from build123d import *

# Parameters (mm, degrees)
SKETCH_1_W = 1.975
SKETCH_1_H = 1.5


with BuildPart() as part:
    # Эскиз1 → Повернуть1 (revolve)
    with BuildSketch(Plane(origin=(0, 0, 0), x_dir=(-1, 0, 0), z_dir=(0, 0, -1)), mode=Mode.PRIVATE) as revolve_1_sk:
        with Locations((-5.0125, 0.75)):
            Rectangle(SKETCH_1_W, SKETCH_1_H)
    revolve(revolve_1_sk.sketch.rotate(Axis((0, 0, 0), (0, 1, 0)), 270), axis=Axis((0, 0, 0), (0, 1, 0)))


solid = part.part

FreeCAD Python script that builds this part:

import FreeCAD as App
import Part
import Sketcher

V = App.Vector
Q = App.Units.Quantity


def add_polygon(sketch, points):
    """Adds a closed chain of lines whose ends are joined by coincident constraints."""
    first, n = sketch.GeometryCount, len(points)
    for a, b in zip(points, points[1:] + points[:1]):
        sketch.addGeometry(Part.LineSegment(App.Vector(*a, 0), App.Vector(*b, 0)), False)
    for i in range(n):
        sketch.addConstraint(Sketcher.Constraint("Coincident", first + i, 2, first + (i + 1) % n, 1))

doc = App.newDocument("Part")
body = doc.addObject("PartDesign::Body", "Body")

# Sketch on XY plane
sketch1 = body.newObject("Sketcher::SketchObject", "Sketch")
sketch1.AttachmentSupport = (doc.getObject("XY_Plane"), [""])
sketch1.MapMode = "FlatFace"
add_polygon(sketch1, [(6, 1.5), (6, 0), (4, 0), (4, 1.5)])  # lines 0-3
sketch1.addConstraint(Sketcher.Constraint("Vertical", 0))
sketch1.addConstraint(Sketcher.Constraint("Horizontal", 1))
sketch1.addConstraint(Sketcher.Constraint("Vertical", 2))
sketch1.addConstraint(Sketcher.Constraint("Horizontal", 3))
sketch1.addConstraint(Sketcher.Constraint("PointOnObject", 0, 2, -1))
sketch1.addConstraint(Sketcher.Constraint("DistanceY", 0, 2, 0, 1, Q("1.5 mm")))
sketch1.addConstraint(Sketcher.Constraint("DistanceX", -1, 1, 0, 2, Q("6 mm")))
sketch1.addConstraint(Sketcher.Constraint("DistanceX", 1, 2, 1, 1, Q("1.975 mm")))
revolution = body.newObject("PartDesign::Revolution", "Revolution")
revolution.Profile = sketch1
revolution.ReferenceAxis = (sketch1, ["V_Axis"])
revolution.Angle = 360

doc.recompute()
